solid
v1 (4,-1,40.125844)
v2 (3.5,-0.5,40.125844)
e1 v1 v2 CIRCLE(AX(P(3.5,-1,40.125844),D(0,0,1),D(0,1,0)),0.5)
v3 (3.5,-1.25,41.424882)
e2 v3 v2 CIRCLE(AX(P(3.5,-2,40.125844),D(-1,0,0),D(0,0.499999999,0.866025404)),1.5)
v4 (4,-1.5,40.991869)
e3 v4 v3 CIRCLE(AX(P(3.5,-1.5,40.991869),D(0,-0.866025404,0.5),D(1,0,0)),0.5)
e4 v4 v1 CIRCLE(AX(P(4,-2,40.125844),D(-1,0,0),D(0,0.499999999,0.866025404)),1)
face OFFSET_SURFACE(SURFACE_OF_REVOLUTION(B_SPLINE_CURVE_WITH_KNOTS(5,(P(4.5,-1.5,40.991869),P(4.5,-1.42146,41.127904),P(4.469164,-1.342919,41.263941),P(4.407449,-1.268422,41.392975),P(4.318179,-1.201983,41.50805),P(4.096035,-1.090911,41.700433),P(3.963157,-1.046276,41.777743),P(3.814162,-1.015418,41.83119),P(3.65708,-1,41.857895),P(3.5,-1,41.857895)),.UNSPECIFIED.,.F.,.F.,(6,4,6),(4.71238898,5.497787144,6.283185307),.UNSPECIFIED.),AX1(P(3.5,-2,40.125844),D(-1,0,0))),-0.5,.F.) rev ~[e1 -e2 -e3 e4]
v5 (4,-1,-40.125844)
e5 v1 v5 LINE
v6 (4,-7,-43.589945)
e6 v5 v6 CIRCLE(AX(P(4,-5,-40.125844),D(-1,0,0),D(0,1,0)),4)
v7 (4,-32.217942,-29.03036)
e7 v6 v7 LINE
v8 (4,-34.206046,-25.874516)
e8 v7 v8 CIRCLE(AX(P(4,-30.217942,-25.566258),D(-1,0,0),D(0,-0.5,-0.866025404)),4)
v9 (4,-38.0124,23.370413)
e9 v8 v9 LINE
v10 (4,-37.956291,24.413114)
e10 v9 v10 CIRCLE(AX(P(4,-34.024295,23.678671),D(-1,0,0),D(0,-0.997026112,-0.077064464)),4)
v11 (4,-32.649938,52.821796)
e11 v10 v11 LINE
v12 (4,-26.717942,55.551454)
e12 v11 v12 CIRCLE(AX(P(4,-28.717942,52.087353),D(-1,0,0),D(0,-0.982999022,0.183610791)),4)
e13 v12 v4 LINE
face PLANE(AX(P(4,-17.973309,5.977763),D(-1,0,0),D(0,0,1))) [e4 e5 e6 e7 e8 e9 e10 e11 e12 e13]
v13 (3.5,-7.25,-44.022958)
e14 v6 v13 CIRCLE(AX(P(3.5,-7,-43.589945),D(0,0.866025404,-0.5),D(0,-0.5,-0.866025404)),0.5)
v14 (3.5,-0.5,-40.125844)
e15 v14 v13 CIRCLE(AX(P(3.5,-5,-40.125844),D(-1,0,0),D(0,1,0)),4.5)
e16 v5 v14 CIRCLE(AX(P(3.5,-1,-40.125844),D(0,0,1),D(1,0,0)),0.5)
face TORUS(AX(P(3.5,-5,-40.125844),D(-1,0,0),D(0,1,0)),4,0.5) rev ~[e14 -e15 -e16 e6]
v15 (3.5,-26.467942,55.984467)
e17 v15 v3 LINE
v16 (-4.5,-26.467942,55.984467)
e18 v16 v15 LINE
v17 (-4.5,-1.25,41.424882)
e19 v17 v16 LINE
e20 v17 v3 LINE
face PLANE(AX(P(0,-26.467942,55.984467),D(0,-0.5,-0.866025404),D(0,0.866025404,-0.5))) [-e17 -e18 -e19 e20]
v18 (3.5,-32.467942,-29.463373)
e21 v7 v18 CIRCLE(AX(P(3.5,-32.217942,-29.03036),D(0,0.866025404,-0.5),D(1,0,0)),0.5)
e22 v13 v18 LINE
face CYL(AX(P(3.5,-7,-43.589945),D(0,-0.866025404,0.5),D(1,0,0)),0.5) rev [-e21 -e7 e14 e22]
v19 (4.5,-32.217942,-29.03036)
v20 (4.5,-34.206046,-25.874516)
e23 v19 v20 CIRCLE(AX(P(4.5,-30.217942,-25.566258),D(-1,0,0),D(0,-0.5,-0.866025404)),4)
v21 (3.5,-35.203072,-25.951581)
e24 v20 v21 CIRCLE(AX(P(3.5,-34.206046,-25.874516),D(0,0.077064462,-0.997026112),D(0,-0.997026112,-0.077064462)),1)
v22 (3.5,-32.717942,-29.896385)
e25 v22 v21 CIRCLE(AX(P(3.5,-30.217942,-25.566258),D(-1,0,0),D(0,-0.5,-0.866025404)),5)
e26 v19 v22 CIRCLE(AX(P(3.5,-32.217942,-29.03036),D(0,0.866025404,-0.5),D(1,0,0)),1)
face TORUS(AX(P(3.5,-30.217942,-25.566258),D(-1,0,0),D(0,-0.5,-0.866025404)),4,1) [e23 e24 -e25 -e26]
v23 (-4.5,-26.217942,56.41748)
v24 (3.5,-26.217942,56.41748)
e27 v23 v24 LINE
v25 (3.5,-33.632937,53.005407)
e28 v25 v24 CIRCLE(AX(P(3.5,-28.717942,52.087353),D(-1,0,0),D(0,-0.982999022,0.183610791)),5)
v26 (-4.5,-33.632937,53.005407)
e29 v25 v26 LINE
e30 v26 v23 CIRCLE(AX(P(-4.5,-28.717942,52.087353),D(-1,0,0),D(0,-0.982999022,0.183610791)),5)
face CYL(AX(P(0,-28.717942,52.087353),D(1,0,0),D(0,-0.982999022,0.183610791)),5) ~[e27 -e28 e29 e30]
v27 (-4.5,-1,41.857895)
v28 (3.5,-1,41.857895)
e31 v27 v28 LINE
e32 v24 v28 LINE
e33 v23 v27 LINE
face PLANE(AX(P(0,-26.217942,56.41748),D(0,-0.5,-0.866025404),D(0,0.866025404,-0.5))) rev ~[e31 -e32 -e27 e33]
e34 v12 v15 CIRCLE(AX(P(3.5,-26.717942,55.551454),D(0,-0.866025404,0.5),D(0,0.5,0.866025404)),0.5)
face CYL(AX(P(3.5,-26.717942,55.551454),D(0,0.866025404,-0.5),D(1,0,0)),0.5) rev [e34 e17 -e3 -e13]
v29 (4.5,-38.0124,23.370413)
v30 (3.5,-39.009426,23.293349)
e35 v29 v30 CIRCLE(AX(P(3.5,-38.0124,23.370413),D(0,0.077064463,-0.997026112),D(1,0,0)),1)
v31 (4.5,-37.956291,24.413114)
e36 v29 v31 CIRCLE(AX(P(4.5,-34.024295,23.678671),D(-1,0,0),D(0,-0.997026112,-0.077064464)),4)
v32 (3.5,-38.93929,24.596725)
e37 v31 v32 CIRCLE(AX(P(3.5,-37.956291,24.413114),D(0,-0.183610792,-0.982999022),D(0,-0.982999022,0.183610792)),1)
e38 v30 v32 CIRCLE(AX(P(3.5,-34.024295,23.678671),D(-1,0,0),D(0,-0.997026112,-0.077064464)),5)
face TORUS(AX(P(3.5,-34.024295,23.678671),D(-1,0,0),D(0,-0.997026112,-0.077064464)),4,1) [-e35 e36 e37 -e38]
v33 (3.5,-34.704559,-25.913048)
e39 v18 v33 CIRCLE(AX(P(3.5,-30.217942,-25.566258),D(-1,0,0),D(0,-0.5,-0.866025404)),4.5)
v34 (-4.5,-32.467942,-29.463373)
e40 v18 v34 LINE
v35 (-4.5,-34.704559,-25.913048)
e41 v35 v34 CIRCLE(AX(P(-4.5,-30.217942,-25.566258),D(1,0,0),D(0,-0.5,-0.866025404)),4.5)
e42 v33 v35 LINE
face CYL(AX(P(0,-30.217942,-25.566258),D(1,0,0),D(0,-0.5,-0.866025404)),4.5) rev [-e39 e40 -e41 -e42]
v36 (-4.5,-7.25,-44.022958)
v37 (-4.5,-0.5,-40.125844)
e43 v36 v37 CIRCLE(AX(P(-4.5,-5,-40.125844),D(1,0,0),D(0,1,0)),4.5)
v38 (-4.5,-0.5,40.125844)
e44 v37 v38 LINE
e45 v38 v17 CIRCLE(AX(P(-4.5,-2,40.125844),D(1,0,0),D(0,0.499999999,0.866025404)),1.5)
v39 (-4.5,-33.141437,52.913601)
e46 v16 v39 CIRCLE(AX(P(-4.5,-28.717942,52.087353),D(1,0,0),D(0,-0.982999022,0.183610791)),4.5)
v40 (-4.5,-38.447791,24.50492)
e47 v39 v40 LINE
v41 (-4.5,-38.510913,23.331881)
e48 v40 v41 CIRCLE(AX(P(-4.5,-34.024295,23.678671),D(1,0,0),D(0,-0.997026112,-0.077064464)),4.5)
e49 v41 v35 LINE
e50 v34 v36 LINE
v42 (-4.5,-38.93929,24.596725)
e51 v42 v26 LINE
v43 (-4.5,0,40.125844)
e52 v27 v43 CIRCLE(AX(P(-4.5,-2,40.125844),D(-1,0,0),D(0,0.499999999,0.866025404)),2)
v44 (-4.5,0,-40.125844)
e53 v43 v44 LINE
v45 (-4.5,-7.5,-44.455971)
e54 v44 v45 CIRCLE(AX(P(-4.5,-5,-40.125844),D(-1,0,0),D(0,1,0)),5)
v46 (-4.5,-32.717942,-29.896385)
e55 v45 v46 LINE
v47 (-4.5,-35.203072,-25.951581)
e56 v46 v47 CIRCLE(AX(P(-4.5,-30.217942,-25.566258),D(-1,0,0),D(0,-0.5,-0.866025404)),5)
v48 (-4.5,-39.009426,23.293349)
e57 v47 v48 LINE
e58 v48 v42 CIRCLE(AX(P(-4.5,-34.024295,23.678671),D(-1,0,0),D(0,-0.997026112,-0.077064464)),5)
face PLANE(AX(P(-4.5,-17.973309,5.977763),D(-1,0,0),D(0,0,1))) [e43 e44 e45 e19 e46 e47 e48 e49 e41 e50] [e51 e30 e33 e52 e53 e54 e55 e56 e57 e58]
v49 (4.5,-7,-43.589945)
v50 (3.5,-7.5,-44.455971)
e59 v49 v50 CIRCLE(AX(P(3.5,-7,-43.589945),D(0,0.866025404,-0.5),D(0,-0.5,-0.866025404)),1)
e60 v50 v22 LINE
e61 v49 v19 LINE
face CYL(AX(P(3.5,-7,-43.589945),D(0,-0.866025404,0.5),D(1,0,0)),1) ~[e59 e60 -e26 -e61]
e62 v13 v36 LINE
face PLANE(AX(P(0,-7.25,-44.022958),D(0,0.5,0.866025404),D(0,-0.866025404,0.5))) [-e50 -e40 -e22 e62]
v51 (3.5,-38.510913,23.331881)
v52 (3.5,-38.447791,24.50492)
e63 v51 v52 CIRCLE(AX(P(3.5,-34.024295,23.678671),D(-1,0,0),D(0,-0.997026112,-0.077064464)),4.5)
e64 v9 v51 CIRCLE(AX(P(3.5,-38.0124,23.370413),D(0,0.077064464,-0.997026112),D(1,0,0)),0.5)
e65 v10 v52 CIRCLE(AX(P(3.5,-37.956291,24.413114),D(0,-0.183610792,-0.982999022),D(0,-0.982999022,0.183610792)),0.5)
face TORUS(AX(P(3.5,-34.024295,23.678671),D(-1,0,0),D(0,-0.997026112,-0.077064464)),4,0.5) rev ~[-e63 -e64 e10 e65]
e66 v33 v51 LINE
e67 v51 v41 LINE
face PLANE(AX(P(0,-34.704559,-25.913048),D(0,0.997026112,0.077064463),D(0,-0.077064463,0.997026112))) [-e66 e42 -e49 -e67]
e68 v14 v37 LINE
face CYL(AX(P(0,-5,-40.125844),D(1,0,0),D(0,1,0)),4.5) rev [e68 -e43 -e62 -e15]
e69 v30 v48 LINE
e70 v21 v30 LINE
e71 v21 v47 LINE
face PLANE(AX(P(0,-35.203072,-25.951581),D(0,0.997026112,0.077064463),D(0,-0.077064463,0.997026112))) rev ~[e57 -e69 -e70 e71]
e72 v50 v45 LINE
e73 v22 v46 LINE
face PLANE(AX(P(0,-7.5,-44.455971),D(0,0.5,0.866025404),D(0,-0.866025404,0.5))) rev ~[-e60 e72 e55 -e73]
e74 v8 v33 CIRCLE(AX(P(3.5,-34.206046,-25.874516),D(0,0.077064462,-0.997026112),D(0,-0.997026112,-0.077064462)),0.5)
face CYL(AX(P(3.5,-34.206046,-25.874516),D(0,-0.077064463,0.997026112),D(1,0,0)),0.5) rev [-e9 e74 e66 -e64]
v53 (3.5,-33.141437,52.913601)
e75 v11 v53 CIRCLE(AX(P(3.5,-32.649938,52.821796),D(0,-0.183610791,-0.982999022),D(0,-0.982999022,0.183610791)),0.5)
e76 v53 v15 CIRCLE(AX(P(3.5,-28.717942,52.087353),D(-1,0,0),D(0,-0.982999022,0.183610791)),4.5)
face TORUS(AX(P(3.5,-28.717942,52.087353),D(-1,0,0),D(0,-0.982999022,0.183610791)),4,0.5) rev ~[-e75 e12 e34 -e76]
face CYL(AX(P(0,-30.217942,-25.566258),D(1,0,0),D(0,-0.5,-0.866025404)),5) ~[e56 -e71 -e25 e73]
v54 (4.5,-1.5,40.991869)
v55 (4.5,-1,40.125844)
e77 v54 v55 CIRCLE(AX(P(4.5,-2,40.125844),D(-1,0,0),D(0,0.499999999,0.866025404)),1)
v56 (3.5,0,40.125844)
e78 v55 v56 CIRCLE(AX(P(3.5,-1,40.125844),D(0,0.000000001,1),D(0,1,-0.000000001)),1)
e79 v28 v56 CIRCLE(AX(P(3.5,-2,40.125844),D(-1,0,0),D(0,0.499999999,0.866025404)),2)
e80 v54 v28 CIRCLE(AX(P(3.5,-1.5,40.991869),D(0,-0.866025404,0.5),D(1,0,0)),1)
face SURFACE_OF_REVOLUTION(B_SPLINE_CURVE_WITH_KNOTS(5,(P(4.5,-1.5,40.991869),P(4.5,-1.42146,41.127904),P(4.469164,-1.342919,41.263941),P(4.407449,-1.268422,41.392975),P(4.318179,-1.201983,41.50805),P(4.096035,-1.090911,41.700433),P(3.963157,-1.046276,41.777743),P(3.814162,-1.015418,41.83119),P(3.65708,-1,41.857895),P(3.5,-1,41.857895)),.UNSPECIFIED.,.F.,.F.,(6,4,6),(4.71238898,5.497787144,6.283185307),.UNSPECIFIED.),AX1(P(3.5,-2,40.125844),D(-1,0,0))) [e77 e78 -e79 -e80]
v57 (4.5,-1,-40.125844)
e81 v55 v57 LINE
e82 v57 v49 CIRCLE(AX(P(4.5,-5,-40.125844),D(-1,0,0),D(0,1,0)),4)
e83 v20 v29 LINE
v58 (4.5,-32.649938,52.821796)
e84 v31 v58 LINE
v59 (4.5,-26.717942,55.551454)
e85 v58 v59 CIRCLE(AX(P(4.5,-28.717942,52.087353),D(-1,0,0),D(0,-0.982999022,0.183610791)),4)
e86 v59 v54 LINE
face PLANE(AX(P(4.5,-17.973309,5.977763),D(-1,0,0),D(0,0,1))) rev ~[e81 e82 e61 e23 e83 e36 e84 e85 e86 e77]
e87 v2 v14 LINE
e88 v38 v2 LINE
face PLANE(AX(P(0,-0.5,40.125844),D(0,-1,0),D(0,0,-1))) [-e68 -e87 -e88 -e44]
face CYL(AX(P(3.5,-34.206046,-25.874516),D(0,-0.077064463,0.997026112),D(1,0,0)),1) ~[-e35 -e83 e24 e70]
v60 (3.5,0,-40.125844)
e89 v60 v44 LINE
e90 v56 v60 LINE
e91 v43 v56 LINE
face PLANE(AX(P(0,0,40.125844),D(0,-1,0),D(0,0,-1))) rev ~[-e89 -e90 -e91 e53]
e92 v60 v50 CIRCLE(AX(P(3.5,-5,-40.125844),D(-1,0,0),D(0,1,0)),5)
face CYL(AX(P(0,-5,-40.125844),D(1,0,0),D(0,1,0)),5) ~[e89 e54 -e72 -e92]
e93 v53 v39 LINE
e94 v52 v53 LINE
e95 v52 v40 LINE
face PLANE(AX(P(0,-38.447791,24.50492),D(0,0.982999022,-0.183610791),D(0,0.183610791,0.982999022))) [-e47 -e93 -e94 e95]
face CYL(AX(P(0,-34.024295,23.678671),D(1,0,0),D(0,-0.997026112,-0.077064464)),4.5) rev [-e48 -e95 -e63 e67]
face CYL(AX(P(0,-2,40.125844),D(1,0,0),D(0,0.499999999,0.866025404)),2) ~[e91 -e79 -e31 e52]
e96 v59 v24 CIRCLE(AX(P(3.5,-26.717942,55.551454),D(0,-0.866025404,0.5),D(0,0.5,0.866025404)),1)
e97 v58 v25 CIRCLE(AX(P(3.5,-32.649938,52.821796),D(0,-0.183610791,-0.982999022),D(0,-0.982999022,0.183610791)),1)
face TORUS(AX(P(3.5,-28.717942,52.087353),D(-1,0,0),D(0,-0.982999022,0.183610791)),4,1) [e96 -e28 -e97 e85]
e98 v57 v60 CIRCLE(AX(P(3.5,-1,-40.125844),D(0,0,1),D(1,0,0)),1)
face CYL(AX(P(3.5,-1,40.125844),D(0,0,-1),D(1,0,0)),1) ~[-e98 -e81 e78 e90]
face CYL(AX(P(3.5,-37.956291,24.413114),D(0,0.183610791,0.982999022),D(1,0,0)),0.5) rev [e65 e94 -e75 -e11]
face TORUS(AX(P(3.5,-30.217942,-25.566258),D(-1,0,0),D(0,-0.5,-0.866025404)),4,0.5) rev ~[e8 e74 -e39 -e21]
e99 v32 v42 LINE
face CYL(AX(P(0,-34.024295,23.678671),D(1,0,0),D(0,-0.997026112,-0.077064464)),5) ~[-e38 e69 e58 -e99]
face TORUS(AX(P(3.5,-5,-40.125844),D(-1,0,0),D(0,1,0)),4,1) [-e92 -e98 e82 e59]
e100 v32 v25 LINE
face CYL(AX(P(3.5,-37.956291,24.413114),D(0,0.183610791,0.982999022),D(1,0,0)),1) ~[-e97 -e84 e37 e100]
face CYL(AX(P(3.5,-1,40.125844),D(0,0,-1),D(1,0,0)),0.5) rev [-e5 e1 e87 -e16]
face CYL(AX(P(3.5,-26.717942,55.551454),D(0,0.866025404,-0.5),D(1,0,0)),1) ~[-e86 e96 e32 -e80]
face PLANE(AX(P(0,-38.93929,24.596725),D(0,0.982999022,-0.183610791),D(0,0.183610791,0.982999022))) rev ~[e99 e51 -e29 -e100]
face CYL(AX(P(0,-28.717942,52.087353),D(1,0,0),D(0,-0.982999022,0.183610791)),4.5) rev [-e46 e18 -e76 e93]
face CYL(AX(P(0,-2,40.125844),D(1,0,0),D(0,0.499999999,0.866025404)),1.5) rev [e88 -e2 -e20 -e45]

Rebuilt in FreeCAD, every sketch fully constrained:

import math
import FreeCAD as App
import Part
import Sketcher
from FreeCAD import Vector
Q = App.Units.Quantity


def edges_at(feature, points):
    """Names of the edges that pass closest to the given points."""
    edges = feature.Shape.Edges
    near = lambda p: min(range(len(edges)), key=lambda i: edges[i].distToShape(Part.Vertex(*p))[0])
    return sorted({f"Edge{near(p) + 1}" for p in points})


def faces_at(feature, points):
    """Names of the faces that lie closest to the given points."""
    faces = feature.Shape.Faces
    near = lambda p: min(range(len(faces)), key=lambda i: faces[i].distToShape(Part.Vertex(*p))[0])
    return sorted({f"Face{near(p) + 1}" for p in points})

doc = App.newDocument("Part")
params = doc.addObject("Spreadsheet::Sheet", "Params")
for row, (alias, value) in enumerate([
    ("sketch1_radius", "2 mm"),
    ("sketch1_radius2", "5 mm"),
    ("pad1_length", "9 mm"),
    ("fillet_radius", "1 mm"),
    ("thickness_wall", "0.5 mm"),
], start=1):
    params.set(f"A{row}", alias)
    params.set(f"B{row}", "=" + value)
    params.setAlias(f"B{row}", alias)

body = doc.addObject("PartDesign::Body", "Body")

# Sketch on YZ plane
sketch1 = body.newObject("Sketcher::SketchObject", "Sketch")
sketch1.AttachmentSupport = (doc.getObject("YZ_Plane"), [""])
sketch1.MapMode = "FlatFace"
sketch1.addGeometry(Part.LineSegment(Vector(0, -40.1, 0), Vector(0, 40.1, 0)), False)
sketch1.addGeometry(Part.ArcOfCircle(Part.Circle(Vector(-2, 40.1, 0), Vector(0, 0, 1), 2), math.radians(0), math.radians(60)), False)
sketch1.addGeometry(Part.LineSegment(Vector(-1, 41.9, 0), Vector(-26.2, 56.4, 0)), False)
sketch1.addGeometry(Part.ArcOfCircle(Part.Circle(Vector(-28.7, 52.1, 0), Vector(0, 0, 1), 5), math.radians(60), math.radians(169)), False)
sketch1.addGeometry(Part.LineSegment(Vector(-33.6, 53, 0), Vector(-38.9, 24.6, 0)), False)
sketch1.addGeometry(Part.ArcOfCircle(Part.Circle(Vector(-34, 23.7, 0), Vector(0, 0, 1), 5), math.radians(169.42), math.radians(184.42)), False)
sketch1.addGeometry(Part.LineSegment(Vector(-39, 23.3, 0), Vector(-35.2, -26, 0)), False)
sketch1.addGeometry(Part.ArcOfCircle(Part.Circle(Vector(-30.2, -25.6, 0), Vector(0, 0, 1), 5), math.radians(-176), math.radians(-120)), False)
sketch1.addGeometry(Part.LineSegment(Vector(-32.7, -29.9, 0), Vector(-7.5, -44.5, 0)), False)
sketch1.addGeometry(Part.ArcOfCircle(Part.Circle(Vector(-5, -40.1, 0), Vector(0, 0, 1), 5), math.radians(-120), math.radians(0)), False)
sketch1.addConstraint(Sketcher.Constraint("Tangent", 0, 2, 1, 1))
sketch1.addConstraint(Sketcher.Constraint("Tangent", 1, 2, 2, 1))
sketch1.addConstraint(Sketcher.Constraint("Tangent", 2, 2, 3, 1))
sketch1.addConstraint(Sketcher.Constraint("Tangent", 3, 2, 4, 1))
sketch1.addConstraint(Sketcher.Constraint("Tangent", 4, 2, 5, 1))
sketch1.addConstraint(Sketcher.Constraint("Tangent", 5, 2, 6, 1))
sketch1.addConstraint(Sketcher.Constraint("Tangent", 6, 2, 7, 1))
sketch1.addConstraint(Sketcher.Constraint("Tangent", 7, 2, 8, 1))
sketch1.addConstraint(Sketcher.Constraint("Tangent", 8, 2, 9, 1))
sketch1.addConstraint(Sketcher.Constraint("Tangent", 9, 2, 0, 1))
sketch1.addConstraint(Sketcher.Constraint("Vertical", 0))
sketch1.addConstraint(Sketcher.Constraint("Equal", 3, 5))
sketch1.addConstraint(Sketcher.Constraint("Equal", 5, 7))
sketch1.addConstraint(Sketcher.Constraint("Equal", 7, 9))
sketch1.addConstraint(Sketcher.Constraint("Symmetric", 0, 2, 9, 2, -1, 1))
sketch1.addConstraint(Sketcher.Constraint("Parallel", 2, 8))
sketch1.addConstraint(Sketcher.Constraint("Equal", 2, 8))
sketch1.addConstraint(Sketcher.Constraint("Radius", 1, Q("2 mm")))
sketch1.addConstraint(Sketcher.Constraint("Radius", 3, Q("5 mm")))
sketch1.addConstraint(Sketcher.Constraint("Angle", 2, Q("150 deg")))
sketch1.addConstraint(Sketcher.Constraint("Distance", 2, Q("29.119171 mm")))
sketch1.addConstraint(Sketcher.Constraint("Distance", 4, Q("28.90001 mm")))
sketch1.addConstraint(Sketcher.Constraint("DistanceY", 0, 1, 0, 2, Q("80.251687 mm")))
sketch1.addConstraint(Sketcher.Constraint("DistanceY", -1, 1, 5, 3, Q("23.678671 mm")))
sketch1.setExpression("Constraints[17]", "Params.sketch1_radius")
sketch1.setExpression("Constraints[18]", "Params.sketch1_radius2")
pad1 = body.newObject("PartDesign::Pad", "Pad")
pad1.Profile = sketch1
pad1.setExpression("Length", "Params.pad1_length")
pad1.Midplane = True
doc.recompute()

fillet = body.newObject("PartDesign::Fillet", "Fillet")
fillet.Base = (pad1, edges_at(pad1, [
    (4.5, -30.808, 56.63),
    (4.5, -36.286, 38.801),
    (4.5, -39.017, 23.947),
    (4.5, -37.106, -1.329),
    (4.5, -34.448, -28.231),
    (4.5, -20.109, -37.176),
    (4.5, -2.5, -44.456),
    (4.5, 0, 0),
    (4.5, -0.268, 41.126),
    (4.5, -13.609, 49.138),
]))
fillet.setExpression("Radius", "Params.fillet_radius")
doc.recompute()

thickness = body.newObject("PartDesign::Thickness", "Thickness")
thickness.Base = (fillet, faces_at(fillet, [(-4.5, -19.512, 5.981)]))
thickness.setExpression("Value", "Params.thickness_wall")
thickness.Reversed = True
thickness.Join = "Intersection"

doc.recompute()
